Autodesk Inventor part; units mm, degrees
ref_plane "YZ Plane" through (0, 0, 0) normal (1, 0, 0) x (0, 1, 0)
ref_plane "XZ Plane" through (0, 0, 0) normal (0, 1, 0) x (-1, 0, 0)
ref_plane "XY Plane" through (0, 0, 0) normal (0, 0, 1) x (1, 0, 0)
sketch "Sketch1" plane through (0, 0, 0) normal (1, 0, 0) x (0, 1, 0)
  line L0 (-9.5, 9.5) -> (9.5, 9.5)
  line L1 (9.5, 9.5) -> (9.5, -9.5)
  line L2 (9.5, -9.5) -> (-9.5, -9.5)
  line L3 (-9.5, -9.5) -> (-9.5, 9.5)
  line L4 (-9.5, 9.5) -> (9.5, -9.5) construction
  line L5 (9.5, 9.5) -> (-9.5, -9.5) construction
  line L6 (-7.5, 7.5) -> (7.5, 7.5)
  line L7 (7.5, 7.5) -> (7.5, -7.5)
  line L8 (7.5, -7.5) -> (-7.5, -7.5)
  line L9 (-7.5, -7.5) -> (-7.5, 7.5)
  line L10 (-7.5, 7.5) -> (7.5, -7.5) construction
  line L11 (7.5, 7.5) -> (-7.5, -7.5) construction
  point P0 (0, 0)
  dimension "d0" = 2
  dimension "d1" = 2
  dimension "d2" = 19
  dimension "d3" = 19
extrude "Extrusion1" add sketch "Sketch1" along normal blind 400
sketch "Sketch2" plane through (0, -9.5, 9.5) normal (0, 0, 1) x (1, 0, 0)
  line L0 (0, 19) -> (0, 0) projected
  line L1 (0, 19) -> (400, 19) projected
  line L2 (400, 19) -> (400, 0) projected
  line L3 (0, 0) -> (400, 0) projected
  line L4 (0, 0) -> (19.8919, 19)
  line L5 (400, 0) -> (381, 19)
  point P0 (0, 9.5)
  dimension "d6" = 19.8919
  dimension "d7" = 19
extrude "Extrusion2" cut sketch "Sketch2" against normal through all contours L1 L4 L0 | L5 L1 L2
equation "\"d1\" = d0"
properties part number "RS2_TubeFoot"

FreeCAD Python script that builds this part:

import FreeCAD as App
import Part
import Sketcher


def add_polygon(sketch, points):
    """Adds a closed chain of lines whose ends are joined by coincident constraints."""
    first, n = sketch.GeometryCount, len(points)
    for a, b in zip(points, points[1:] + points[:1]):
        sketch.addGeometry(Part.LineSegment(App.Vector(*a, 0), App.Vector(*b, 0)), False)
    for i in range(n):
        sketch.addConstraint(Sketcher.Constraint("Coincident", first + i, 2, first + (i + 1) % n, 1))

doc = App.newDocument("Part")
body = doc.addObject("PartDesign::Body", "Body")

sketch1 = body.newObject("Sketcher::SketchObject", "Sketch")
sketch1.AttachmentSupport = (doc.getObject("YZ_Plane"), [""])
sketch1.MapMode = "FlatFace"
add_polygon(sketch1, [(9.5, 9.5), (-9.5, 9.5), (-9.5, -9.5), (9.5, -9.5)])
add_polygon(sketch1, [(-7.5, -7.5), (-7.5, 7.5), (7.5, 7.5), (7.5, -7.5)])
sketch1.addConstraint([
    Sketcher.Constraint("Horizontal", 0),
    Sketcher.Constraint("Vertical", 1),
    Sketcher.Constraint("Horizontal", 2),
    Sketcher.Constraint("Vertical", 3),
    Sketcher.Constraint("Vertical", 4),
    Sketcher.Constraint("Horizontal", 5),
    Sketcher.Constraint("Vertical", 6),
    Sketcher.Constraint("Horizontal", 7),
    Sketcher.Constraint("Symmetric", 0, 2, 2, 2, -1, 1),
    Sketcher.Constraint("Symmetric", 4, 2, 6, 2, -1, 1),
    Sketcher.Constraint("Equal", 2, 1),
    Sketcher.Constraint("Equal", 7, 4),
    Sketcher.Constraint("DistanceX", 0, 2, 0, 1, 19.0),
    Sketcher.Constraint("DistanceX", 0, 2, 4, 2, 2.0),
])
pad1 = body.newObject("PartDesign::Pad", "Pad")
pad1.Profile = sketch1
pad1.Length = 400

sketch2 = body.newObject("Sketcher::SketchObject", "Sketch001")
sketch2.AttachmentSupport = (doc.getObject("XY_Plane"), [""])
sketch2.MapMode = "FlatFace"
sketch2.AttachmentOffset = App.Placement(App.Vector(0, 0, 9.5), App.Rotation())
add_polygon(sketch2, [(19.8919, 9.5), (0, 9.5), (0, -9.5)])
add_polygon(sketch2, [(381, 9.5), (400, -9.5), (400, 9.5)])
sketch2.addConstraint([
    Sketcher.Constraint("Horizontal", 0),
    Sketcher.Constraint("Vertical", 1),
    Sketcher.Constraint("Vertical", 4),
    Sketcher.Constraint("Horizontal", 5),
    Sketcher.Constraint("Symmetric", 0, 2, 1, 2, -1, 1),
    Sketcher.Constraint("Horizontal", 1, 2, 3, 2),
    Sketcher.Constraint("Horizontal", 2, 2, 4, 2),
    Sketcher.Constraint("Equal", 5, 1),
    Sketcher.Constraint("DistanceX", 5, 2, 5, 1, 19.0),
    Sketcher.Constraint("DistanceX", 0, 2, 0, 1, 19.892),
    Sketcher.Constraint("DistanceX", -1, 1, 3, 2, 400.0),
])
pocket1 = body.newObject("PartDesign::Pocket", "Pocket")
pocket1.Profile = sketch2
pocket1.Type = "ThroughAll"

doc.recompute()
